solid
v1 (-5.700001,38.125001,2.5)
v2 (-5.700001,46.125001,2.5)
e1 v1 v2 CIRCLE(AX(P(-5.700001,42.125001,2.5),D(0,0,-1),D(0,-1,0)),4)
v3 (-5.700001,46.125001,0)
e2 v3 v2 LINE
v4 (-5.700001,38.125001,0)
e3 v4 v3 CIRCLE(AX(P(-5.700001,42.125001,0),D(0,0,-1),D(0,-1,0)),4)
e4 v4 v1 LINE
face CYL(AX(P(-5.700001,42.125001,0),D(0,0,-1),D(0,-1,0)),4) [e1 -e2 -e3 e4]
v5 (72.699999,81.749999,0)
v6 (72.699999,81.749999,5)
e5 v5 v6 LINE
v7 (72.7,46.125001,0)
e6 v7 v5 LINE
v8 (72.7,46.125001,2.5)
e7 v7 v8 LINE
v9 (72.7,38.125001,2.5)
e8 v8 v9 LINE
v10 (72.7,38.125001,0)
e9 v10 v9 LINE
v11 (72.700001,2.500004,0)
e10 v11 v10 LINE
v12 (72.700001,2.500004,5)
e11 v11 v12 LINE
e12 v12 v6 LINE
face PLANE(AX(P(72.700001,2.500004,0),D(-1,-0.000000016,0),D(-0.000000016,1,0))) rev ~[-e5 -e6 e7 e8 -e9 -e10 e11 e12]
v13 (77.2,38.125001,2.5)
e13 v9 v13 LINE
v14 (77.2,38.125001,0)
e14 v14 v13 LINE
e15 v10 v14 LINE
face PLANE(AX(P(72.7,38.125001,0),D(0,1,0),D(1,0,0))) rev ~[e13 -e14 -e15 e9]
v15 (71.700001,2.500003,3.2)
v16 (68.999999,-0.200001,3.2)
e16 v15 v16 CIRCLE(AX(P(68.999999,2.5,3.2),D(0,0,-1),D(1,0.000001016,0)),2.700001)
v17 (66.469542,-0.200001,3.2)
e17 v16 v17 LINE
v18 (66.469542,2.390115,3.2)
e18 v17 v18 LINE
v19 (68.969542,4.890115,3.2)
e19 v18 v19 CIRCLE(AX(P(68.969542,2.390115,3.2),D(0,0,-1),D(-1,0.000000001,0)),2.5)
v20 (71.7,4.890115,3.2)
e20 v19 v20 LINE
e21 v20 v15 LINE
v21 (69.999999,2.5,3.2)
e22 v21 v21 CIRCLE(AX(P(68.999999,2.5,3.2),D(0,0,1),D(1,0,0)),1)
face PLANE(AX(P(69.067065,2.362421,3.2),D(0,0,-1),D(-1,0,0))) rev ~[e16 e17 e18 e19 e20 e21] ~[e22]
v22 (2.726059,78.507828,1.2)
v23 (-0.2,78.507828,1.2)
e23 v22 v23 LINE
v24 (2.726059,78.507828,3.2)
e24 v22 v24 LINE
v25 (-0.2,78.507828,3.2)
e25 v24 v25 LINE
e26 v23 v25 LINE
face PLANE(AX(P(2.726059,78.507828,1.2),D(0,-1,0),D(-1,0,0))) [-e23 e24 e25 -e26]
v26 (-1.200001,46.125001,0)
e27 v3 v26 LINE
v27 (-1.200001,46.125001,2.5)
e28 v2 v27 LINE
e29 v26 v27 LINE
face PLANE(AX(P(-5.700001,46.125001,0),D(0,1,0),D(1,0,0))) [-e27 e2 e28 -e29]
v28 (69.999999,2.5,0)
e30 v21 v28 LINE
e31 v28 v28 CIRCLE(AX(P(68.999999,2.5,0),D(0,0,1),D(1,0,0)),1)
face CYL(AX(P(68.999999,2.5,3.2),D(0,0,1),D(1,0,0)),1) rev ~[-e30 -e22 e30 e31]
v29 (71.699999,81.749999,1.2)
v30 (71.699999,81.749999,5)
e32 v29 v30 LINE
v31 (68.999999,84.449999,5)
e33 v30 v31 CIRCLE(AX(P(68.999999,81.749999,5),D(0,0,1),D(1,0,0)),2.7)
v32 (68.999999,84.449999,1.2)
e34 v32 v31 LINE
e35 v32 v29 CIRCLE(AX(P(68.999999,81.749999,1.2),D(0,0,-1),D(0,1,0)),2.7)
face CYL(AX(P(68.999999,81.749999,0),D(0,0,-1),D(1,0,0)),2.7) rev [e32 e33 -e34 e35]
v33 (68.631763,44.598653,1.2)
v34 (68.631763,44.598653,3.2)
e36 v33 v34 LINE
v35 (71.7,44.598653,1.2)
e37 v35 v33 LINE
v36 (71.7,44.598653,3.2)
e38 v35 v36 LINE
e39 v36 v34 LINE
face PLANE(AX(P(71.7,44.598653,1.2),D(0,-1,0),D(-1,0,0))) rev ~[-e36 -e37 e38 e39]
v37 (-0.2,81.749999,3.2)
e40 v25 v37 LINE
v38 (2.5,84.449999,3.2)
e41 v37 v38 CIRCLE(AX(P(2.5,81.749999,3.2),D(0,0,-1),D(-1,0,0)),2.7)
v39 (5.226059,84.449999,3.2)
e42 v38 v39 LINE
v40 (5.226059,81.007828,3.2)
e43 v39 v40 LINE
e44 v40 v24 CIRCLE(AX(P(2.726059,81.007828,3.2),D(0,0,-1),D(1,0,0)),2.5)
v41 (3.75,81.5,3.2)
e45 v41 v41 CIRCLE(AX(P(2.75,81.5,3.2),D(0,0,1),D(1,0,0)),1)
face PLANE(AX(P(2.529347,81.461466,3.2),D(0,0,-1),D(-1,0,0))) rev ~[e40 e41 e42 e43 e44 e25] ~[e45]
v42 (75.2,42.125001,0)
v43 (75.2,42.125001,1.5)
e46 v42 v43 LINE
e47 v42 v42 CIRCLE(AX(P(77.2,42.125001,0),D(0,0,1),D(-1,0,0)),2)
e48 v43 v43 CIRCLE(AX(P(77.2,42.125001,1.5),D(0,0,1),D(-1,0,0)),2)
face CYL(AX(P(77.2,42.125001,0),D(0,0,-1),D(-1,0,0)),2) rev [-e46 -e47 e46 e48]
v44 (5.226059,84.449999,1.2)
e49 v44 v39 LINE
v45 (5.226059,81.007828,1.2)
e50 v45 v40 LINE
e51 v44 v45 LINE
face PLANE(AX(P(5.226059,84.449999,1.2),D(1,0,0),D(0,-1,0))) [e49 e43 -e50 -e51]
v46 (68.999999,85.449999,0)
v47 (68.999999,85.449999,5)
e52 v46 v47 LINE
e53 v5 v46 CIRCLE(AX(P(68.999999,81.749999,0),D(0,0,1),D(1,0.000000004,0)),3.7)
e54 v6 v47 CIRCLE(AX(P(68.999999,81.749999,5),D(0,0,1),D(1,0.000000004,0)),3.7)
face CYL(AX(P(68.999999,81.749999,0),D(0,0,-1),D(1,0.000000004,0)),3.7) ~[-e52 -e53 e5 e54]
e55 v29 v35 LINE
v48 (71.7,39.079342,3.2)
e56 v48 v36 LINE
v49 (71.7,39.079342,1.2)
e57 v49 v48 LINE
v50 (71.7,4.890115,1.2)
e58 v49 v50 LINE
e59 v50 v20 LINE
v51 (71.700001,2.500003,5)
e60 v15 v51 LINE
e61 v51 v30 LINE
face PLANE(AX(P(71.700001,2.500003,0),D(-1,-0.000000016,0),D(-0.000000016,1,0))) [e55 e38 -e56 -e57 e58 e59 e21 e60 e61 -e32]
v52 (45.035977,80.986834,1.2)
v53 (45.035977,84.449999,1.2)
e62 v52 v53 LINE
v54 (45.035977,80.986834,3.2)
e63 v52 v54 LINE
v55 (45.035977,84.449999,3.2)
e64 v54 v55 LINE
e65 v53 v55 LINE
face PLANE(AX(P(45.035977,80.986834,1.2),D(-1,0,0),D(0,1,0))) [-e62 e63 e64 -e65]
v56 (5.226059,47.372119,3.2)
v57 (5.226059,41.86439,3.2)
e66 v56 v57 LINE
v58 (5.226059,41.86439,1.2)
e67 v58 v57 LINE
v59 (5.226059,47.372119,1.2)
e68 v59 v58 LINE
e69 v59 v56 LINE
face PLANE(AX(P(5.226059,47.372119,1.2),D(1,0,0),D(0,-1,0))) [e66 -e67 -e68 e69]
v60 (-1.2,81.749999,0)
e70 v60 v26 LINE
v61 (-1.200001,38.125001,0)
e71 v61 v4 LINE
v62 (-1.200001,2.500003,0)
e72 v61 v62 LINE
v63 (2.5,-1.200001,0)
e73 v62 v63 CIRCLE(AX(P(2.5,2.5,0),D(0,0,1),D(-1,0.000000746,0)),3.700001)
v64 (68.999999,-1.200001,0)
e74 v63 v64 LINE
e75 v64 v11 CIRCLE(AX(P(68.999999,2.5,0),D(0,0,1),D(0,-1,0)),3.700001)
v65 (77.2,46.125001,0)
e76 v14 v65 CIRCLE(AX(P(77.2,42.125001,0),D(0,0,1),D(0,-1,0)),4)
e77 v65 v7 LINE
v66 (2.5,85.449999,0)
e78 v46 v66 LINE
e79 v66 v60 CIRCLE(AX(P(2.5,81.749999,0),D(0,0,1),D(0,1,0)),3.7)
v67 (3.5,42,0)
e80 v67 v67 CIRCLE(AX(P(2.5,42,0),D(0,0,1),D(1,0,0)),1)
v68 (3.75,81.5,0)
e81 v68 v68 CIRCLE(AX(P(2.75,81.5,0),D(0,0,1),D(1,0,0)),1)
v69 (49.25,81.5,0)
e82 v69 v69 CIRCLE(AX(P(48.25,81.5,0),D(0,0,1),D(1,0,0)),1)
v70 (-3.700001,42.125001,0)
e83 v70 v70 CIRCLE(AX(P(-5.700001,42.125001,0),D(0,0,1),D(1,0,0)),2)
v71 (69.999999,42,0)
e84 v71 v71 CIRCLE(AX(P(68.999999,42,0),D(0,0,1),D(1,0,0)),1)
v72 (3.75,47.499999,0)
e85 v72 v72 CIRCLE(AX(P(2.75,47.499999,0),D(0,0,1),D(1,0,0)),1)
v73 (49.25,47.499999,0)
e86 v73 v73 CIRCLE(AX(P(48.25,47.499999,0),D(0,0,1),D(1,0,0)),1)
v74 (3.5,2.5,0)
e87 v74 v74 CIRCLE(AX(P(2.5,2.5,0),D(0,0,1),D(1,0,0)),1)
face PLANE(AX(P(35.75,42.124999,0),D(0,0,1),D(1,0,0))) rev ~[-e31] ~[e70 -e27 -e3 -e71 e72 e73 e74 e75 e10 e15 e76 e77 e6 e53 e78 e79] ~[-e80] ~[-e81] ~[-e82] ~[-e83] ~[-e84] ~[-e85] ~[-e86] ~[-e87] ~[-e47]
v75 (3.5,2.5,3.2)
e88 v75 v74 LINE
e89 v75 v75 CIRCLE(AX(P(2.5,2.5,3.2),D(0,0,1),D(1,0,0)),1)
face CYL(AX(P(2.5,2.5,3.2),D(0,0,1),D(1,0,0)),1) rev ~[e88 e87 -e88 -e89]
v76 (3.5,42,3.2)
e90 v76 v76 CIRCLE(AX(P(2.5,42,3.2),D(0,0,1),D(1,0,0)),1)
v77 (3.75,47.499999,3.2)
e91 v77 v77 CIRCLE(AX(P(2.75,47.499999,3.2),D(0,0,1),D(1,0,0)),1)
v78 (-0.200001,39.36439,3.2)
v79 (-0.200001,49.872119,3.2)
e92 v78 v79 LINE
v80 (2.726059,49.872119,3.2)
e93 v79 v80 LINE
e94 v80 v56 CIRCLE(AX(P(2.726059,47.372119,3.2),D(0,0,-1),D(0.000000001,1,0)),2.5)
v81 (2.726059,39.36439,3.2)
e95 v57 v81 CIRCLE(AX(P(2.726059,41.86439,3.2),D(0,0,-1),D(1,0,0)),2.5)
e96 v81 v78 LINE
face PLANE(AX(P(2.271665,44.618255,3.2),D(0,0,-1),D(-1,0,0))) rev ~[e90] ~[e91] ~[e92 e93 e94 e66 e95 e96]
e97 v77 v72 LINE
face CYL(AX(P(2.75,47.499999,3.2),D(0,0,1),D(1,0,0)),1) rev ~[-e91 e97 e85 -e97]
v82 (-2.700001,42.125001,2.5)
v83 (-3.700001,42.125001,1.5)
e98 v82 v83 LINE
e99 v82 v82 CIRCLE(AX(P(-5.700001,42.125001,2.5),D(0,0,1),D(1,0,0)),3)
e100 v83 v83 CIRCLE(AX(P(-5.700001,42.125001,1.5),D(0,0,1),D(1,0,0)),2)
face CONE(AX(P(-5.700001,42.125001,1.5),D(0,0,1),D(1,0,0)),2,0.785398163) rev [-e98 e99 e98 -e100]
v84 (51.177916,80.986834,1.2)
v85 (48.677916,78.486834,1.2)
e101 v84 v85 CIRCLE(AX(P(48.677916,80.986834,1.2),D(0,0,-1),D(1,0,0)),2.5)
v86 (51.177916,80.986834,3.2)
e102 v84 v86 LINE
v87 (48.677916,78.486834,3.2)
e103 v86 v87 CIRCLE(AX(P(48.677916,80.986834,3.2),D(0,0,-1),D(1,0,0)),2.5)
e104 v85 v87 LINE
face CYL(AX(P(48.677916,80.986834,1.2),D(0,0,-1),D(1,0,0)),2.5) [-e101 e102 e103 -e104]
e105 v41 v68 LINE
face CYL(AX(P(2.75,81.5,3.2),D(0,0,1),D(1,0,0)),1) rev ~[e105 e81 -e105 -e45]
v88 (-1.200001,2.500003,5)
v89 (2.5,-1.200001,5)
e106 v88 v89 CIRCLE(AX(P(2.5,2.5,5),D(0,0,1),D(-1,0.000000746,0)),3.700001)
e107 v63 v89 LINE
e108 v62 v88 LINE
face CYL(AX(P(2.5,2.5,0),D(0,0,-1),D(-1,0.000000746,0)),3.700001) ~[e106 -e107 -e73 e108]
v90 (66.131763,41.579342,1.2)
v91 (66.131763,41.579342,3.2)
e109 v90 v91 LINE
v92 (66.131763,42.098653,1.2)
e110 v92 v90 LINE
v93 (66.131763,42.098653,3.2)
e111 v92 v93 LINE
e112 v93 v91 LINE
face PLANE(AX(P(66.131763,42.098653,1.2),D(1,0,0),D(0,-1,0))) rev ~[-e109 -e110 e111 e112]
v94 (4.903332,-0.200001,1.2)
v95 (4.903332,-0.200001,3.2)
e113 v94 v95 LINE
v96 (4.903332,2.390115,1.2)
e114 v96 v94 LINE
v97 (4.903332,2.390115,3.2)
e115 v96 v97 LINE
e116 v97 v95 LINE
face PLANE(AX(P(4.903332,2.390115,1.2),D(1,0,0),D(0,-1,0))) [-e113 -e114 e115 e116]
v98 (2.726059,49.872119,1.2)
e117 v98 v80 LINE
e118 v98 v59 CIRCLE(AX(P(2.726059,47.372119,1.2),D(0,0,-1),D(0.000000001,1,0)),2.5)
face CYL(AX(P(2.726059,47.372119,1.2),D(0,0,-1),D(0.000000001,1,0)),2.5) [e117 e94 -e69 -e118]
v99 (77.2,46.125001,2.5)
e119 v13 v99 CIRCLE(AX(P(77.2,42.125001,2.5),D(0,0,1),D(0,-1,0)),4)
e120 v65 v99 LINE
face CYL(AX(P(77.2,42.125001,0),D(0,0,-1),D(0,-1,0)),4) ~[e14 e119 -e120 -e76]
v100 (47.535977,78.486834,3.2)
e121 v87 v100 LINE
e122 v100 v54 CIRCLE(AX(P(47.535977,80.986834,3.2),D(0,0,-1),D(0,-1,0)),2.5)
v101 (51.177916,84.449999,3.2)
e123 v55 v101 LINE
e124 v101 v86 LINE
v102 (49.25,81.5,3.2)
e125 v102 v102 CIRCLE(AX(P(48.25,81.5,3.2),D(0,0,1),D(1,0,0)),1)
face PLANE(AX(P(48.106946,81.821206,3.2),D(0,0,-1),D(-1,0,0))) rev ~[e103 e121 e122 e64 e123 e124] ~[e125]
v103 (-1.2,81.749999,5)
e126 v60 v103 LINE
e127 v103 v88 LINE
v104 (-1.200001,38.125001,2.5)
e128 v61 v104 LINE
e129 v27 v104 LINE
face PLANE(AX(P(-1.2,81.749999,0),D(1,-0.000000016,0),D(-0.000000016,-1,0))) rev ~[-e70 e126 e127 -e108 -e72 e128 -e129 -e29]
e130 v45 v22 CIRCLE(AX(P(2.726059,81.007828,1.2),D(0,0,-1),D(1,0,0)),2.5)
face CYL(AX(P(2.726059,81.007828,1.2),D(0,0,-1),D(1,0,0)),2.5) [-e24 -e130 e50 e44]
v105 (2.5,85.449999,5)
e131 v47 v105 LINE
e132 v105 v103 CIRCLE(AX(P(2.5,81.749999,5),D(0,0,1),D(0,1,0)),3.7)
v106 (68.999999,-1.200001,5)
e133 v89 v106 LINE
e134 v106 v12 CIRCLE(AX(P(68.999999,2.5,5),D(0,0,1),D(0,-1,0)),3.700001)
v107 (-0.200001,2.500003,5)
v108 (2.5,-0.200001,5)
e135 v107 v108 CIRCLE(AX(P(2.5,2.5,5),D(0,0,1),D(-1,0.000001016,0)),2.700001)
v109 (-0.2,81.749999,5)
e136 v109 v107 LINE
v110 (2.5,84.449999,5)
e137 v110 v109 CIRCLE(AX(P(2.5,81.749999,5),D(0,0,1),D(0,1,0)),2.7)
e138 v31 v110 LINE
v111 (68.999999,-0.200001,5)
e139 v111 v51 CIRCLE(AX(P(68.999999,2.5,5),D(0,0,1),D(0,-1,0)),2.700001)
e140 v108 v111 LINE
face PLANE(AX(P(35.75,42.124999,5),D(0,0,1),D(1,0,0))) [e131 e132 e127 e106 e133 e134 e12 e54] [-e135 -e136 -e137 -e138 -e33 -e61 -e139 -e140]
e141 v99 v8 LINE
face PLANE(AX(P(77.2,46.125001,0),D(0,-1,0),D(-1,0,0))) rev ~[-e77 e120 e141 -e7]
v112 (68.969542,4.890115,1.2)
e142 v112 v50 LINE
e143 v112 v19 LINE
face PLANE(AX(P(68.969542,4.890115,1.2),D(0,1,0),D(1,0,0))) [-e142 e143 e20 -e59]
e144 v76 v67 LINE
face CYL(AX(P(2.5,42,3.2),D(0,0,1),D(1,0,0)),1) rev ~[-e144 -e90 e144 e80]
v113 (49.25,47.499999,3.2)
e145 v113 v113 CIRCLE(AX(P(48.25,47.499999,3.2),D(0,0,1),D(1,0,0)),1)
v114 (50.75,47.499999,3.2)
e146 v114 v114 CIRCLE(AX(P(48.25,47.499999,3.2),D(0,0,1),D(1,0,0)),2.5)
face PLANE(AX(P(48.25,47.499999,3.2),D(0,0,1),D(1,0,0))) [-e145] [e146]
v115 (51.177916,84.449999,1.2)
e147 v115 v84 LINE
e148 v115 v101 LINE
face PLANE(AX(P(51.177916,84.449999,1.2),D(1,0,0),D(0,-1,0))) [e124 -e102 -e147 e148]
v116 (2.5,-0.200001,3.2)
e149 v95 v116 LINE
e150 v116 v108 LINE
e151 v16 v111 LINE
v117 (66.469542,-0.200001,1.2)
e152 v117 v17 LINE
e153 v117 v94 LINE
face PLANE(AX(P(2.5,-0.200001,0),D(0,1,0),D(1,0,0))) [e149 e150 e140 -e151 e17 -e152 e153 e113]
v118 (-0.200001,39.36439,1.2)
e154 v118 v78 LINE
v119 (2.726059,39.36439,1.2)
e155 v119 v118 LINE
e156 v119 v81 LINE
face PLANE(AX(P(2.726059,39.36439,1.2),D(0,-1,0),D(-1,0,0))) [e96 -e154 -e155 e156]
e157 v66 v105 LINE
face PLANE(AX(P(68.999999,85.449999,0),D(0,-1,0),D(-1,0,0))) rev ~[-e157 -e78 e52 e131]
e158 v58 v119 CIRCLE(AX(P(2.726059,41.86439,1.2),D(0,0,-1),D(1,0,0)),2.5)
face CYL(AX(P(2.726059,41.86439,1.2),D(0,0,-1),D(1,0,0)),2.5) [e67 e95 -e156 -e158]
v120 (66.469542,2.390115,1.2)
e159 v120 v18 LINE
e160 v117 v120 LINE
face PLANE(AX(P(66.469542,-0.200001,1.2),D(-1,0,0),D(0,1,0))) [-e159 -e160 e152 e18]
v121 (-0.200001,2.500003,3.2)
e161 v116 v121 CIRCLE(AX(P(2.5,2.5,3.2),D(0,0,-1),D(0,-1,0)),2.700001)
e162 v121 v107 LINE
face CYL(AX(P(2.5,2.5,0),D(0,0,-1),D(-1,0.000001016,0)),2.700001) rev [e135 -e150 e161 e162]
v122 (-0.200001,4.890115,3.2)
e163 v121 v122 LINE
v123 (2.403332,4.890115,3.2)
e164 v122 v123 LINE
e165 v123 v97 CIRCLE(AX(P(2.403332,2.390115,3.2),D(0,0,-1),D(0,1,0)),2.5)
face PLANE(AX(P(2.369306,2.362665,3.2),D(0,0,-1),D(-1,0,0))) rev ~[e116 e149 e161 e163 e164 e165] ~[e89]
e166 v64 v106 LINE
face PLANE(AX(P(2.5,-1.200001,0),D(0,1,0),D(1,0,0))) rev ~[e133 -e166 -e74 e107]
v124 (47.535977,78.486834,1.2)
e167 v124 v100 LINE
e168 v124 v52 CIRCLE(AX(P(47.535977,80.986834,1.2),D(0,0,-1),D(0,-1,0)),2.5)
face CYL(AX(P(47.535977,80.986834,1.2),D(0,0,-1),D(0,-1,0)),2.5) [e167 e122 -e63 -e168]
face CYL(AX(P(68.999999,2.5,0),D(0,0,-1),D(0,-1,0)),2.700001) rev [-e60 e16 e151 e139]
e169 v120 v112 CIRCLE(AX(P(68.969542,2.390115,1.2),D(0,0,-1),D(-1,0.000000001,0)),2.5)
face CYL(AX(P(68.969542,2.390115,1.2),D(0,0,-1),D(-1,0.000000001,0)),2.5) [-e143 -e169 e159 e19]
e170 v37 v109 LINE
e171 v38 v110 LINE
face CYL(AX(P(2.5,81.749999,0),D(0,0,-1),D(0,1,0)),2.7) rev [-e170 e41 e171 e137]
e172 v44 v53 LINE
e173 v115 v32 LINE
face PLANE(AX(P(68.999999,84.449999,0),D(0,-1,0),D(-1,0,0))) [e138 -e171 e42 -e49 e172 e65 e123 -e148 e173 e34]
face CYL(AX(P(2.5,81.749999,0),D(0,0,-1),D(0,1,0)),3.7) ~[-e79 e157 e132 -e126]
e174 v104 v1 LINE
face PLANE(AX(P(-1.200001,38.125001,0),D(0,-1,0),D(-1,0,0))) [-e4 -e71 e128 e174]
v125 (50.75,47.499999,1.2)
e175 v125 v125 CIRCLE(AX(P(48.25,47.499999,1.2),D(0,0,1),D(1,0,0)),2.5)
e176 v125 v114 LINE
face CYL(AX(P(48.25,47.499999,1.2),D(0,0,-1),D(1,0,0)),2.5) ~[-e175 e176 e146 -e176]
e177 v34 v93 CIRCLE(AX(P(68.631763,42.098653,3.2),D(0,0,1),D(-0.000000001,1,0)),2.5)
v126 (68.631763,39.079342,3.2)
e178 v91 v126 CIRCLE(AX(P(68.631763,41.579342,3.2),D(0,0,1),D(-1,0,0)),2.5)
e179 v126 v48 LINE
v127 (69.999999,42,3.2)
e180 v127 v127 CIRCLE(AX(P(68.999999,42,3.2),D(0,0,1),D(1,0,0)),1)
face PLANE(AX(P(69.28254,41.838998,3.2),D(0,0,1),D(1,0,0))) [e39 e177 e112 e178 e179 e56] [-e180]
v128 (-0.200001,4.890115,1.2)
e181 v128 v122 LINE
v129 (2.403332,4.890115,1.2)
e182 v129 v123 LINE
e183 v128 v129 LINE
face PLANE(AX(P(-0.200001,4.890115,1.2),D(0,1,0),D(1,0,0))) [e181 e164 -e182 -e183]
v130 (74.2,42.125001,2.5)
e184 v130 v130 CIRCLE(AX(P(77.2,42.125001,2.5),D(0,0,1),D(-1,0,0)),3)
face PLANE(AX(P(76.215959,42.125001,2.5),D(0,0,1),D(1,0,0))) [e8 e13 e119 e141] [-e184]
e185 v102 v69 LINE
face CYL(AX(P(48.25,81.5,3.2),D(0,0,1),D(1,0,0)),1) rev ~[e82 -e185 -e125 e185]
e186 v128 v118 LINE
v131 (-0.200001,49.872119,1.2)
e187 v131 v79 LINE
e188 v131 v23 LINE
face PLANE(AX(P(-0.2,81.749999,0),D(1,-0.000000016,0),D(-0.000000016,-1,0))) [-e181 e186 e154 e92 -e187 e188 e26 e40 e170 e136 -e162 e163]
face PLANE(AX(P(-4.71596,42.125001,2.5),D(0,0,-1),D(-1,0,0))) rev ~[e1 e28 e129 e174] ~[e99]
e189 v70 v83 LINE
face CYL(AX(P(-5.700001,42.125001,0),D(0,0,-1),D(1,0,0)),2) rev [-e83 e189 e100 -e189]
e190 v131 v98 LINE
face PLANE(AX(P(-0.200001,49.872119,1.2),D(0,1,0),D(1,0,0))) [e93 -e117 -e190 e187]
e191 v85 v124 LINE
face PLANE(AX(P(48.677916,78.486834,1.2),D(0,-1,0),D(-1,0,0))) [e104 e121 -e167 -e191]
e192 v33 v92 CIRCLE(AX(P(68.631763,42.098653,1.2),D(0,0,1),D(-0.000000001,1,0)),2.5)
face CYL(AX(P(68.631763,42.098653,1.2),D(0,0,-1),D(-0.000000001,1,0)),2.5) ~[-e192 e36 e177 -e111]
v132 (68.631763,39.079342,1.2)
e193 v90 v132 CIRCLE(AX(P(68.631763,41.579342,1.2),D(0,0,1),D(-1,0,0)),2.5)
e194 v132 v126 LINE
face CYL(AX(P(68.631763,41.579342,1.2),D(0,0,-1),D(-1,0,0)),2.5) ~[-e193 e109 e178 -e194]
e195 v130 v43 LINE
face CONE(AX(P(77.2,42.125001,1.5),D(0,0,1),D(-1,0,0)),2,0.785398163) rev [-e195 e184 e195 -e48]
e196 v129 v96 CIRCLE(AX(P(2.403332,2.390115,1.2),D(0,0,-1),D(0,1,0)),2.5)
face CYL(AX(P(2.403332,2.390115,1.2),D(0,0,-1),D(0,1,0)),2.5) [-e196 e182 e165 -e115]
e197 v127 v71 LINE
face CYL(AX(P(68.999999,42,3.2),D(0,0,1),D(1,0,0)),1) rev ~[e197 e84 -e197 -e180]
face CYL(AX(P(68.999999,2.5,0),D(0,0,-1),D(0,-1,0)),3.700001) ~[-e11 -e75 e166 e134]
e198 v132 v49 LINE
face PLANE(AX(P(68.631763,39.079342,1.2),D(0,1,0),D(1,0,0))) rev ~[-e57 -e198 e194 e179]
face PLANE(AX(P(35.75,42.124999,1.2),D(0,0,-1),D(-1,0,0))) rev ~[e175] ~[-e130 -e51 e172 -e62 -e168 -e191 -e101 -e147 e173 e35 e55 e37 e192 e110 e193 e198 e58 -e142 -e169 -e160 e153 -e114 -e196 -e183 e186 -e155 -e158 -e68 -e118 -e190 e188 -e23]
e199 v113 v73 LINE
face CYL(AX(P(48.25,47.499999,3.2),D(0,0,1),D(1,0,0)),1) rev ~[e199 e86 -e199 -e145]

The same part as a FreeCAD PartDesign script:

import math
import FreeCAD as App
import Part
import Sketcher

V = App.Vector
Q = App.Units.Quantity


def edges_at(feature, points):
    """Names of the edges that pass closest to the given points."""
    edges = feature.Shape.Edges
    near = lambda p: min(range(len(edges)), key=lambda i: edges[i].distToShape(Part.Vertex(*p))[0])
    return sorted({f"Edge{near(p) + 1}" for p in points})

doc = App.newDocument("Part")
body = doc.addObject("PartDesign::Body", "Body")

# Sketch on XY plane
sketch1 = doc.addObject("Sketcher::SketchObject", "Sketch")
body.addObject(sketch1)
sketch1.AttachmentSupport = (doc.XY_Plane, [""])
sketch1.MapMode = "FlatFace"
sketch1.addGeometry([
    Part.LineSegment(V(71.7, 2.5, 0), V(71.7, 81.7, 0)),  # 0
    Part.ArcOfCircle(Part.Circle(V(69, 81.7, 0), V(0, 0, 1), 2.7), math.radians(0), math.radians(90)),  # 1
    Part.LineSegment(V(69, 84.4, 0), V(2.5, 84.4, 0)),  # 2
    Part.ArcOfCircle(Part.Circle(V(2.5, 81.7, 0), V(0, 0, 1), 2.7), math.radians(90), math.radians(180)),  # 3
    Part.LineSegment(V(-0.2, 81.7, 0), V(-0.2, 2.5, 0)),  # 4
    Part.ArcOfCircle(Part.Circle(V(2.5, 2.5, 0), V(0, 0, 1), 2.7), math.radians(180), math.radians(270)),  # 5
    Part.LineSegment(V(2.5, -0.2, 0), V(69, -0.2, 0)),  # 6
    Part.ArcOfCircle(Part.Circle(V(69, 2.5, 0), V(0, 0, 1), 2.7), math.radians(-90), math.radians(0)),  # 7
], False)
sketch1.addConstraint([
    Sketcher.Constraint("Tangent", 0, 2, 1, 1),
    Sketcher.Constraint("Tangent", 1, 2, 2, 1),
    Sketcher.Constraint("Tangent", 2, 2, 3, 1),
    Sketcher.Constraint("Tangent", 3, 2, 4, 1),
    Sketcher.Constraint("Tangent", 4, 2, 5, 1),
    Sketcher.Constraint("Tangent", 5, 2, 6, 1),
    Sketcher.Constraint("Tangent", 6, 2, 7, 1),
    Sketcher.Constraint("Tangent", 7, 2, 0, 1),
    Sketcher.Constraint("Vertical", 0),
    Sketcher.Constraint("Horizontal", 2),
    Sketcher.Constraint("Vertical", 4),
    Sketcher.Constraint("Horizontal", 6),
    Sketcher.Constraint("Equal", 1, 3),
    Sketcher.Constraint("Equal", 3, 5),
    Sketcher.Constraint("Equal", 5, 7),
    Sketcher.Constraint("Radius", 1, Q("2.7 mm")),
    Sketcher.Constraint("DistanceX", 2, 2, 2, 1, Q("66.499999 mm")),
    Sketcher.Constraint("DistanceX", -1, 1, 1, 3, Q("68.999999 mm")),
    Sketcher.Constraint("DistanceY", -1, 1, 5, 3, Q("2.5 mm")),
    Sketcher.Constraint("DistanceY", -1, 1, 1, 3, Q("81.749999 mm")),
])
pad1 = doc.addObject("PartDesign::Pad", "Pad")
body.addObject(pad1)
pad1.Profile = sketch1
pad1.Length = 1.2

# Sketch on XY plane
sketch2 = doc.addObject("Sketcher::SketchObject", "Sketch001")
body.addObject(sketch2)
sketch2.AttachmentSupport = (doc.XY_Plane, [""])
sketch2.MapMode = "FlatFace"
sketch2.addGeometry([
    Part.LineSegment(V(-1.2, 81.7, 0), V(-1.2, 2.5, 0)),  # 0
    Part.ArcOfCircle(Part.Circle(V(2.5, 2.5, 0), V(0, 0, 1), 3.7), math.radians(180), math.radians(270)),  # 1
    Part.LineSegment(V(2.5, -1.2, 0), V(69, -1.2, 0)),  # 2
    Part.ArcOfCircle(Part.Circle(V(69, 2.5, 0), V(0, 0, 1), 3.7), math.radians(-90), math.radians(0)),  # 3
    Part.LineSegment(V(72.7, 2.5, 0), V(72.7, 81.7, 0)),  # 4
    Part.ArcOfCircle(Part.Circle(V(69, 81.7, 0), V(0, 0, 1), 3.7), math.radians(0), math.radians(90)),  # 5
    Part.LineSegment(V(69, 85.4, 0), V(2.5, 85.4, 0)),  # 6
    Part.ArcOfCircle(Part.Circle(V(2.5, 81.7, 0), V(0, 0, 1), 3.7), math.radians(90), math.radians(180)),  # 7
    Part.LineSegment(V(-0.2, 2.5, 0), V(-0.2, 81.7, 0)),  # 8
    Part.ArcOfCircle(Part.Circle(V(2.5, 81.7, 0), V(0, 0, 1), 2.7), math.radians(90), math.radians(180)),  # 9
    Part.LineSegment(V(2.5, 84.4, 0), V(69, 84.4, 0)),  # 10
    Part.ArcOfCircle(Part.Circle(V(69, 81.7, 0), V(0, 0, 1), 2.7), math.radians(0), math.radians(90)),  # 11
    Part.LineSegment(V(71.7, 81.7, 0), V(71.7, 2.5, 0)),  # 12
    Part.ArcOfCircle(Part.Circle(V(69, 2.5, 0), V(0, 0, 1), 2.7), math.radians(-90), math.radians(0)),  # 13
    Part.LineSegment(V(69, -0.2, 0), V(2.5, -0.2, 0)),  # 14
    Part.ArcOfCircle(Part.Circle(V(2.5, 2.5, 0), V(0, 0, 1), 2.7), math.radians(180), math.radians(270)),  # 15
], False)
sketch2.addConstraint([
    Sketcher.Constraint("Tangent", 0, 2, 1, 1),
    Sketcher.Constraint("Tangent", 1, 2, 2, 1),
    Sketcher.Constraint("Tangent", 2, 2, 3, 1),
    Sketcher.Constraint("Tangent", 3, 2, 4, 1),
    Sketcher.Constraint("Tangent", 4, 2, 5, 1),
    Sketcher.Constraint("Tangent", 5, 2, 6, 1),
    Sketcher.Constraint("Tangent", 6, 2, 7, 1),
    Sketcher.Constraint("Tangent", 7, 2, 0, 1),
    Sketcher.Constraint("Tangent", 8, 2, 9, 2),
    Sketcher.Constraint("Tangent", 9, 1, 10, 1),
    Sketcher.Constraint("Tangent", 10, 2, 11, 2),
    Sketcher.Constraint("Tangent", 11, 1, 12, 1),
    Sketcher.Constraint("Tangent", 12, 2, 13, 2),
    Sketcher.Constraint("Tangent", 13, 1, 14, 1),
    Sketcher.Constraint("Tangent", 14, 2, 15, 2),
    Sketcher.Constraint("Tangent", 15, 1, 8, 1),
    Sketcher.Constraint("Vertical", 0),
    Sketcher.Constraint("Horizontal", 2),
    Sketcher.Constraint("Vertical", 4),
    Sketcher.Constraint("Horizontal", 6),
    Sketcher.Constraint("Vertical", 8),
    Sketcher.Constraint("Horizontal", 10),
    Sketcher.Constraint("Vertical", 12),
    Sketcher.Constraint("Horizontal", 14),
    Sketcher.Constraint("Coincident", 9, 3, 7, 3),
    Sketcher.Constraint("Coincident", 11, 3, 5, 3),
    Sketcher.Constraint("Coincident", 13, 3, 3, 3),
    Sketcher.Constraint("Equal", 1, 3),
    Sketcher.Constraint("Equal", 3, 5),
    Sketcher.Constraint("Equal", 5, 7),
    Sketcher.Constraint("Equal", 13, 15),
    Sketcher.Constraint("Radius", 1, Q("3.700001 mm")),
    Sketcher.Constraint("Radius", 9, Q("2.7 mm")),
    Sketcher.Constraint("DistanceX", 2, 1, 2, 2, Q("66.499999 mm")),
    Sketcher.Constraint("DistanceX", -1, 1, 3, 3, Q("68.999999 mm")),
    Sketcher.Constraint("DistanceY", -1, 1, 1, 3, Q("2.5 mm")),
    Sketcher.Constraint("DistanceY", -1, 1, 5, 3, Q("81.749999 mm")),
])
pad2 = doc.addObject("PartDesign::Pad", "Pad001")
body.addObject(pad2)
pad2.Profile = sketch2
pad2.Length = 5

# Sketch on XY plane
sketch3 = doc.addObject("Sketcher::SketchObject", "Sketch002")
body.addObject(sketch3)
sketch3.AttachmentSupport = (doc.XY_Plane, [""])
sketch3.MapMode = "FlatFace"
sketch3.AttachmentOffset = App.Placement(V(0, 0, 1.2), App.Rotation())
sketch3.addGeometry([
    Part.Circle(V(48.3, 47.5, 0), V(0, 0, 1), 2.5),  # 0
    Part.LineSegment(V(5.2, 84.4, 0), V(2.5, 84.4, 0)),  # 1
    Part.ArcOfCircle(Part.Circle(V(2.5, 81.7, 0), V(0, 0, 1), 2.7), math.radians(90), math.radians(180)),  # 2
    Part.LineSegment(V(-0.2, 81.7, 0), V(-0.2, 78.5, 0)),  # 3
    Part.LineSegment(V(-0.2, 78.5, 0), V(2.7, 78.5, 0)),  # 4
    Part.ArcOfCircle(Part.Circle(V(2.7, 81, 0), V(0, 0, 1), 2.5), math.radians(-90), math.radians(0)),  # 5
    Part.LineSegment(V(5.2, 81, 0), V(5.2, 84.4, 0)),  # 6
    Part.LineSegment(V(-0.2, 4.9, 0), V(-0.2, 2.5, 0)),  # 7
    Part.ArcOfCircle(Part.Circle(V(2.5, 2.5, 0), V(0, 0, 1), 2.7), math.radians(180), math.radians(270)),  # 8
    Part.LineSegment(V(2.5, -0.2, 0), V(4.9, -0.2, 0)),  # 9
    Part.LineSegment(V(4.9, -0.2, 0), V(4.9, 2.4, 0)),  # 10
    Part.ArcOfCircle(Part.Circle(V(2.4, 2.4, 0), V(0, 0, 1), 2.5), math.radians(0), math.radians(90)),  # 11
    Part.LineSegment(V(2.4, 4.9, 0), V(-0.2, 4.9, 0)),  # 12
    Part.LineSegment(V(2.7, 49.9, 0), V(-0.2, 49.9, 0)),  # 13
    Part.LineSegment(V(-0.2, 49.9, 0), V(-0.2, 39.4, 0)),  # 14
    Part.LineSegment(V(-0.2, 39.4, 0), V(2.7, 39.4, 0)),  # 15
    Part.ArcOfCircle(Part.Circle(V(2.7, 41.9, 0), V(0, 0, 1), 2.5), math.radians(-90), math.radians(0)),  # 16
    Part.LineSegment(V(5.2, 41.9, 0), V(5.2, 47.4, 0)),  # 17
    Part.ArcOfCircle(Part.Circle(V(2.7, 47.4, 0), V(0, 0, 1), 2.5), math.radians(0), math.radians(90)),  # 18
    Part.LineSegment(V(66.5, -0.2, 0), V(69, -0.2, 0)),  # 19
    Part.ArcOfCircle(Part.Circle(V(69, 2.5, 0), V(0, 0, 1), 2.7), math.radians(-90), math.radians(0)),  # 20
    Part.LineSegment(V(71.7, 2.5, 0), V(71.7, 4.9, 0)),  # 21
    Part.LineSegment(V(71.7, 4.9, 0), V(69, 4.9, 0)),  # 22
    Part.ArcOfCircle(Part.Circle(V(69, 2.4, 0), V(0, 0, 1), 2.5), math.radians(90), math.radians(180)),  # 23
    Part.LineSegment(V(66.5, 2.4, 0), V(66.5, -0.2, 0)),  # 24
    Part.LineSegment(V(51.2, 84.4, 0), V(45, 84.4, 0)),  # 25
    Part.LineSegment(V(45, 84.4, 0), V(45, 81, 0)),  # 26
    Part.ArcOfCircle(Part.Circle(V(47.5, 81, 0), V(0, 0, 1), 2.5), math.radians(180), math.radians(270)),  # 27
    Part.LineSegment(V(47.5, 78.5, 0), V(48.7, 78.5, 0)),  # 28
    Part.ArcOfCircle(Part.Circle(V(48.7, 81, 0), V(0, 0, 1), 2.5), math.radians(-90), math.radians(0)),  # 29
    Part.LineSegment(V(51.2, 81, 0), V(51.2, 84.4, 0)),  # 30
    Part.LineSegment(V(71.7, 44.6, 0), V(68.6, 44.6, 0)),  # 31
    Part.ArcOfCircle(Part.Circle(V(68.6, 42.1, 0), V(0, 0, 1), 2.5), math.radians(90), math.radians(180)),  # 32
    Part.LineSegment(V(66.1, 42.1, 0), V(66.1, 41.6, 0)),  # 33
    Part.ArcOfCircle(Part.Circle(V(68.6, 41.6, 0), V(0, 0, 1), 2.5), math.radians(180), math.radians(270)),  # 34
    Part.LineSegment(V(68.6, 39.1, 0), V(71.7, 39.1, 0)),  # 35
    Part.LineSegment(V(71.7, 39.1, 0), V(71.7, 44.6, 0)),  # 36
], False)
sketch3.addConstraint([
    Sketcher.Constraint("Tangent", 1, 2, 2, 1),
    Sketcher.Constraint("Tangent", 2, 2, 3, 1),
    Sketcher.Constraint("Coincident", 3, 2, 4, 1),
    Sketcher.Constraint("Tangent", 4, 2, 5, 1),
    Sketcher.Constraint("Tangent", 5, 2, 6, 1),
    Sketcher.Constraint("Coincident", 6, 2, 1, 1),
    Sketcher.Constraint("Tangent", 7, 2, 8, 1),
    Sketcher.Constraint("Tangent", 8, 2, 9, 1),
    Sketcher.Constraint("Coincident", 9, 2, 10, 1),
    Sketcher.Constraint("Tangent", 10, 2, 11, 1),
    Sketcher.Constraint("Tangent", 11, 2, 12, 1),
    Sketcher.Constraint("Coincident", 12, 2, 7, 1),
    Sketcher.Constraint("Coincident", 13, 2, 14, 1),
    Sketcher.Constraint("Coincident", 14, 2, 15, 1),
    Sketcher.Constraint("Tangent", 15, 2, 16, 1),
    Sketcher.Constraint("Tangent", 16, 2, 17, 1),
    Sketcher.Constraint("Tangent", 17, 2, 18, 1),
    Sketcher.Constraint("Tangent", 18, 2, 13, 1),
    Sketcher.Constraint("Tangent", 19, 2, 20, 1),
    Sketcher.Constraint("Tangent", 20, 2, 21, 1),
    Sketcher.Constraint("Coincident", 21, 2, 22, 1),
    Sketcher.Constraint("Tangent", 22, 2, 23, 1),
    Sketcher.Constraint("Tangent", 23, 2, 24, 1),
    Sketcher.Constraint("Coincident", 24, 2, 19, 1),
    Sketcher.Constraint("Coincident", 25, 2, 26, 1),
    Sketcher.Constraint("Tangent", 26, 2, 27, 1),
    Sketcher.Constraint("Tangent", 27, 2, 28, 1),
    Sketcher.Constraint("Tangent", 28, 2, 29, 1),
    Sketcher.Constraint("Tangent", 29, 2, 30, 1),
    Sketcher.Constraint("Coincident", 30, 2, 25, 1),
    Sketcher.Constraint("Tangent", 31, 2, 32, 1),
    Sketcher.Constraint("Tangent", 32, 2, 33, 1),
    Sketcher.Constraint("Tangent", 33, 2, 34, 1),
    Sketcher.Constraint("Tangent", 34, 2, 35, 1),
    Sketcher.Constraint("Coincident", 35, 2, 36, 1),
    Sketcher.Constraint("Coincident", 36, 2, 31, 1),
    Sketcher.Constraint("Horizontal", 1),
    Sketcher.Constraint("Vertical", 3),
    Sketcher.Constraint("Horizontal", 4),
    Sketcher.Constraint("Vertical", 6),
    Sketcher.Constraint("Vertical", 7),
    Sketcher.Constraint("Horizontal", 9),
    Sketcher.Constraint("Vertical", 10),
    Sketcher.Constraint("Horizontal", 12),
    Sketcher.Constraint("Horizontal", 13),
    Sketcher.Constraint("Vertical", 14),
    Sketcher.Constraint("Horizontal", 15),
    Sketcher.Constraint("Vertical", 17),
    Sketcher.Constraint("Horizontal", 19),
    Sketcher.Constraint("Vertical", 21),
    Sketcher.Constraint("Horizontal", 22),
    Sketcher.Constraint("Vertical", 24),
    Sketcher.Constraint("Horizontal", 25),
    Sketcher.Constraint("Vertical", 26),
    Sketcher.Constraint("Horizontal", 28),
    Sketcher.Constraint("Vertical", 30),
    Sketcher.Constraint("Horizontal", 31),
    Sketcher.Constraint("Vertical", 33),
    Sketcher.Constraint("Horizontal", 35),
    Sketcher.Constraint("Vertical", 36),
    Sketcher.Constraint("Equal", 0, 5),
    Sketcher.Constraint("Equal", 2, 8),
    Sketcher.Constraint("Equal", 5, 11),
    Sketcher.Constraint("Equal", 11, 16),
    Sketcher.Constraint("Equal", 16, 18),
    Sketcher.Constraint("Equal", 8, 20),
    Sketcher.Constraint("Equal", 18, 23),
    Sketcher.Constraint("Equal", 23, 27),
    Sketcher.Constraint("Equal", 27, 29),
    Sketcher.Constraint("Equal", 29, 32),
    Sketcher.Constraint("Equal", 32, 34),
    Sketcher.Constraint("Horizontal", 8, 3, 20, 3),
    Sketcher.Constraint("Horizontal", 11, 3, 23, 3),
    Sketcher.Constraint("Horizontal", 6, 2, 25, 2),
    Sketcher.Constraint("Vertical", 2, 3, 8, 3),
    Sketcher.Constraint("Vertical", 5, 3, 16, 3),
    Sketcher.Constraint("Vertical", 12, 2, 13, 2),
    Sketcher.Constraint("Vertical", 21, 2, 35, 2),
    Sketcher.Constraint("Diameter", 0, Q("5 mm")),
    Sketcher.Constraint("Radius", 2, Q("2.7 mm")),
    Sketcher.Constraint("DistanceX", -1, 1, 20, 3, Q("68.999999 mm")),
    Sketcher.Constraint("DistanceY", 8, 3, 0, 3, Q("44.999999 mm")),
    Sketcher.Constraint("DistanceY", -1, 1, 0, 3, Q("47.499999 mm")),
    Sketcher.Constraint("DistanceX", -1, 1, 2, 3, Q("2.5 mm")),
    Sketcher.Constraint("DistanceX", -1, 1, 0, 3, Q("48.25 mm")),
    Sketcher.Constraint("DistanceY", -1, 1, 2, 3, Q("81.749999 mm")),
    Sketcher.Constraint("DistanceX", 1, 2, 1, 1, Q("2.726059 mm")),
    Sketcher.Constraint("DistanceX", 9, 1, 9, 2, Q("2.403332 mm")),
    Sketcher.Constraint("DistanceX", 22, 2, 22, 1, Q("2.730458 mm")),
    Sketcher.Constraint("DistanceX", 25, 2, 25, 1, Q("6.141939 mm")),
    Sketcher.Constraint("DistanceY", 3, 2, 3, 1, Q("3.242171 mm")),
    Sketcher.Constraint("DistanceY", 7, 2, 7, 1, Q("2.390112 mm")),
    Sketcher.Constraint("DistanceY", 14, 2, 14, 1, Q("10.507729 mm")),
    Sketcher.Constraint("DistanceY", 33, 2, 33, 1, Q("0.519312 mm")),
    Sketcher.Constraint("DistanceX", 31, 2, 31, 1, Q("3.068237 mm")),
    Sketcher.Constraint("DistanceY", 26, 2, 26, 1, Q("3.463165 mm")),
    Sketcher.Constraint("DistanceY", -1, 1, 16, 3, Q("41.86439 mm")),
    Sketcher.Constraint("DistanceY", -1, 1, 34, 3, Q("41.579342 mm")),
    Sketcher.Constraint("DistanceX", -1, 1, 27, 3, Q("47.535977 mm")),
])
pad3 = doc.addObject("PartDesign::Pad", "Pad002")
body.addObject(pad3)
pad3.Profile = sketch3
pad3.Length = 2

# Sketch on XY plane
sketch4 = doc.addObject("Sketcher::SketchObject", "Sketch003")
body.addObject(sketch4)
sketch4.AttachmentSupport = (doc.XY_Plane, [""])
sketch4.MapMode = "FlatFace"
sketch4.AttachmentOffset = App.Placement(V(0, 0, 3.2), App.Rotation())
sketch4.addGeometry([
    Part.Circle(V(2.7, 81.5, 0), V(0, 0, 1), 1),  # 0
    Part.Circle(V(48.3, 81.5, 0), V(0, 0, 1), 1),  # 1
    Part.Circle(V(48.3, 47.5, 0), V(0, 0, 1), 1),  # 2
    Part.Circle(V(69, 42, 0), V(0, 0, 1), 1),  # 3
    Part.Circle(V(2.7, 47.5, 0), V(0, 0, 1), 1),  # 4
    Part.Circle(V(2.5, 42, 0), V(0, 0, 1), 1),  # 5
    Part.Circle(V(2.5, 2.5, 0), V(0, 0, 1), 1),  # 6
    Part.Circle(V(69, 2.5, 0), V(0, 0, 1), 1),  # 7
], False)
sketch4.addConstraint([
    Sketcher.Constraint("Equal", 0, 1),
    Sketcher.Constraint("Equal", 1, 2),
    Sketcher.Constraint("Equal", 2, 3),
    Sketcher.Constraint("Equal", 3, 4),
    Sketcher.Constraint("Equal", 4, 5),
    Sketcher.Constraint("Equal", 5, 6),
    Sketcher.Constraint("Equal", 6, 7),
    Sketcher.Constraint("Horizontal", 0, 3, 1, 3),
    Sketcher.Constraint("Horizontal", 2, 3, 4, 3),
    Sketcher.Constraint("Horizontal", 3, 3, 5, 3),
    Sketcher.Constraint("Horizontal", 6, 3, 7, 3),
    Sketcher.Constraint("Vertical", 1, 3, 2, 3),
    Sketcher.Constraint("Vertical", 0, 3, 4, 3),
    Sketcher.Constraint("Vertical", 5, 3, 6, 3),
    Sketcher.Constraint("Vertical", 3, 3, 7, 3),
    Sketcher.Constraint("Diameter", 0, Q("2 mm")),
    Sketcher.Constraint("DistanceX", -1, 1, 3, 3, Q("68.999999 mm")),
    Sketcher.Constraint("DistanceY", -1, 1, 3, 3, Q("42 mm")),
    Sketcher.Constraint("DistanceY", 2, 3, 1, 3, Q("34.000001 mm")),
    Sketcher.Constraint("DistanceY", 6, 3, 4, 3, Q("44.999999 mm")),
    Sketcher.Constraint("DistanceY", -1, 1, 0, 3, Q("81.5 mm")),
    Sketcher.Constraint("DistanceX", -1, 1, 5, 3, Q("2.5 mm")),
    Sketcher.Constraint("DistanceX", 0, 3, 1, 3, Q("45.5 mm")),
    Sketcher.Constraint("DistanceX", -1, 1, 0, 3, Q("2.75 mm")),
])
pocket1 = doc.addObject("PartDesign::Pocket", "Pocket")
body.addObject(pocket1)
pocket1.Profile = sketch4
pocket1.Type = "ThroughAll"

# Sketch on XY plane
sketch5 = doc.addObject("Sketcher::SketchObject", "Sketch004")
body.addObject(sketch5)
sketch5.AttachmentSupport = (doc.XY_Plane, [""])
sketch5.MapMode = "FlatFace"
sketch5.addGeometry([
    Part.LineSegment(V(-1.2, 46.1, 0), V(-5.7, 46.1, 0)),  # 0
    Part.ArcOfCircle(Part.Circle(V(-5.7, 42.1, 0), V(0, 0, 1), 4), math.radians(90), math.radians(270)),  # 1
    Part.LineSegment(V(-5.7, 38.1, 0), V(-1.2, 38.1, 0)),  # 2
    Part.LineSegment(V(-1.2, 38.1, 0), V(-1.2, 46.1, 0)),  # 3
    Part.Circle(V(-5.7, 42.1, 0), V(0, 0, 1), 2),  # 4
    Part.LineSegment(V(72.7, 38.1, 0), V(77.2, 38.1, 0)),  # 5
    Part.ArcOfCircle(Part.Circle(V(77.2, 42.1, 0), V(0, 0, 1), 4), math.radians(-90), math.radians(90)),  # 6
    Part.LineSegment(V(77.2, 46.1, 0), V(72.7, 46.1, 0)),  # 7
    Part.LineSegment(V(72.7, 46.1, 0), V(72.7, 38.1, 0)),  # 8
    Part.Circle(V(77.2, 42.1, 0), V(0, 0, 1), 2),  # 9
], False)
sketch5.addConstraint([
    Sketcher.Constraint("Tangent", 0, 2, 1, 1),
    Sketcher.Constraint("Tangent", 1, 2, 2, 1),
    Sketcher.Constraint("Coincident", 2, 2, 3, 1),
    Sketcher.Constraint("Coincident", 3, 2, 0, 1),
    Sketcher.Constraint("Tangent", 5, 2, 6, 1),
    Sketcher.Constraint("Tangent", 6, 2, 7, 1),
    Sketcher.Constraint("Coincident", 7, 2, 8, 1),
    Sketcher.Constraint("Coincident", 8, 2, 5, 1),
    Sketcher.Constraint("Horizontal", 0),
    Sketcher.Constraint("Horizontal", 2),
    Sketcher.Constraint("Vertical", 3),
    Sketcher.Constraint("Horizontal", 5),
    Sketcher.Constraint("Horizontal", 7),
    Sketcher.Constraint("Vertical", 8),
    Sketcher.Constraint("Coincident", 4, 3, 1, 3),
    Sketcher.Constraint("Coincident", 9, 3, 6, 3),
    Sketcher.Constraint("Equal", 1, 6),
    Sketcher.Constraint("Equal", 4, 9),
    Sketcher.Constraint("Horizontal", 4, 3, 6, 3),
    Sketcher.Constraint("Equal", 2, 5),
    Sketcher.Constraint("Diameter", 4, Q("4 mm")),
    Sketcher.Constraint("Radius", 1, Q("4 mm")),
    Sketcher.Constraint("DistanceX", 0, 2, 0, 1, Q("4.5 mm")),
    Sketcher.Constraint("DistanceX", 1, 3, -1, 1, Q("5.700001 mm")),
    Sketcher.Constraint("DistanceX", -1, 1, 6, 3, Q("77.2 mm")),
    Sketcher.Constraint("DistanceY", -1, 1, 1, 3, Q("42.125001 mm")),
])
pad4 = doc.addObject("PartDesign::Pad", "Pad003")
body.addObject(pad4)
pad4.Profile = sketch5
pad4.Length = 2.5
doc.recompute()

chamfer = doc.addObject("PartDesign::Chamfer", "Chamfer")
body.addObject(chamfer)
chamfer.Base = (pad4, edges_at(pad4, [(-7.7, 42.125, 2.5), (79.2, 42.125, 2.5)]))
chamfer.Size = 1

doc.recompute()
